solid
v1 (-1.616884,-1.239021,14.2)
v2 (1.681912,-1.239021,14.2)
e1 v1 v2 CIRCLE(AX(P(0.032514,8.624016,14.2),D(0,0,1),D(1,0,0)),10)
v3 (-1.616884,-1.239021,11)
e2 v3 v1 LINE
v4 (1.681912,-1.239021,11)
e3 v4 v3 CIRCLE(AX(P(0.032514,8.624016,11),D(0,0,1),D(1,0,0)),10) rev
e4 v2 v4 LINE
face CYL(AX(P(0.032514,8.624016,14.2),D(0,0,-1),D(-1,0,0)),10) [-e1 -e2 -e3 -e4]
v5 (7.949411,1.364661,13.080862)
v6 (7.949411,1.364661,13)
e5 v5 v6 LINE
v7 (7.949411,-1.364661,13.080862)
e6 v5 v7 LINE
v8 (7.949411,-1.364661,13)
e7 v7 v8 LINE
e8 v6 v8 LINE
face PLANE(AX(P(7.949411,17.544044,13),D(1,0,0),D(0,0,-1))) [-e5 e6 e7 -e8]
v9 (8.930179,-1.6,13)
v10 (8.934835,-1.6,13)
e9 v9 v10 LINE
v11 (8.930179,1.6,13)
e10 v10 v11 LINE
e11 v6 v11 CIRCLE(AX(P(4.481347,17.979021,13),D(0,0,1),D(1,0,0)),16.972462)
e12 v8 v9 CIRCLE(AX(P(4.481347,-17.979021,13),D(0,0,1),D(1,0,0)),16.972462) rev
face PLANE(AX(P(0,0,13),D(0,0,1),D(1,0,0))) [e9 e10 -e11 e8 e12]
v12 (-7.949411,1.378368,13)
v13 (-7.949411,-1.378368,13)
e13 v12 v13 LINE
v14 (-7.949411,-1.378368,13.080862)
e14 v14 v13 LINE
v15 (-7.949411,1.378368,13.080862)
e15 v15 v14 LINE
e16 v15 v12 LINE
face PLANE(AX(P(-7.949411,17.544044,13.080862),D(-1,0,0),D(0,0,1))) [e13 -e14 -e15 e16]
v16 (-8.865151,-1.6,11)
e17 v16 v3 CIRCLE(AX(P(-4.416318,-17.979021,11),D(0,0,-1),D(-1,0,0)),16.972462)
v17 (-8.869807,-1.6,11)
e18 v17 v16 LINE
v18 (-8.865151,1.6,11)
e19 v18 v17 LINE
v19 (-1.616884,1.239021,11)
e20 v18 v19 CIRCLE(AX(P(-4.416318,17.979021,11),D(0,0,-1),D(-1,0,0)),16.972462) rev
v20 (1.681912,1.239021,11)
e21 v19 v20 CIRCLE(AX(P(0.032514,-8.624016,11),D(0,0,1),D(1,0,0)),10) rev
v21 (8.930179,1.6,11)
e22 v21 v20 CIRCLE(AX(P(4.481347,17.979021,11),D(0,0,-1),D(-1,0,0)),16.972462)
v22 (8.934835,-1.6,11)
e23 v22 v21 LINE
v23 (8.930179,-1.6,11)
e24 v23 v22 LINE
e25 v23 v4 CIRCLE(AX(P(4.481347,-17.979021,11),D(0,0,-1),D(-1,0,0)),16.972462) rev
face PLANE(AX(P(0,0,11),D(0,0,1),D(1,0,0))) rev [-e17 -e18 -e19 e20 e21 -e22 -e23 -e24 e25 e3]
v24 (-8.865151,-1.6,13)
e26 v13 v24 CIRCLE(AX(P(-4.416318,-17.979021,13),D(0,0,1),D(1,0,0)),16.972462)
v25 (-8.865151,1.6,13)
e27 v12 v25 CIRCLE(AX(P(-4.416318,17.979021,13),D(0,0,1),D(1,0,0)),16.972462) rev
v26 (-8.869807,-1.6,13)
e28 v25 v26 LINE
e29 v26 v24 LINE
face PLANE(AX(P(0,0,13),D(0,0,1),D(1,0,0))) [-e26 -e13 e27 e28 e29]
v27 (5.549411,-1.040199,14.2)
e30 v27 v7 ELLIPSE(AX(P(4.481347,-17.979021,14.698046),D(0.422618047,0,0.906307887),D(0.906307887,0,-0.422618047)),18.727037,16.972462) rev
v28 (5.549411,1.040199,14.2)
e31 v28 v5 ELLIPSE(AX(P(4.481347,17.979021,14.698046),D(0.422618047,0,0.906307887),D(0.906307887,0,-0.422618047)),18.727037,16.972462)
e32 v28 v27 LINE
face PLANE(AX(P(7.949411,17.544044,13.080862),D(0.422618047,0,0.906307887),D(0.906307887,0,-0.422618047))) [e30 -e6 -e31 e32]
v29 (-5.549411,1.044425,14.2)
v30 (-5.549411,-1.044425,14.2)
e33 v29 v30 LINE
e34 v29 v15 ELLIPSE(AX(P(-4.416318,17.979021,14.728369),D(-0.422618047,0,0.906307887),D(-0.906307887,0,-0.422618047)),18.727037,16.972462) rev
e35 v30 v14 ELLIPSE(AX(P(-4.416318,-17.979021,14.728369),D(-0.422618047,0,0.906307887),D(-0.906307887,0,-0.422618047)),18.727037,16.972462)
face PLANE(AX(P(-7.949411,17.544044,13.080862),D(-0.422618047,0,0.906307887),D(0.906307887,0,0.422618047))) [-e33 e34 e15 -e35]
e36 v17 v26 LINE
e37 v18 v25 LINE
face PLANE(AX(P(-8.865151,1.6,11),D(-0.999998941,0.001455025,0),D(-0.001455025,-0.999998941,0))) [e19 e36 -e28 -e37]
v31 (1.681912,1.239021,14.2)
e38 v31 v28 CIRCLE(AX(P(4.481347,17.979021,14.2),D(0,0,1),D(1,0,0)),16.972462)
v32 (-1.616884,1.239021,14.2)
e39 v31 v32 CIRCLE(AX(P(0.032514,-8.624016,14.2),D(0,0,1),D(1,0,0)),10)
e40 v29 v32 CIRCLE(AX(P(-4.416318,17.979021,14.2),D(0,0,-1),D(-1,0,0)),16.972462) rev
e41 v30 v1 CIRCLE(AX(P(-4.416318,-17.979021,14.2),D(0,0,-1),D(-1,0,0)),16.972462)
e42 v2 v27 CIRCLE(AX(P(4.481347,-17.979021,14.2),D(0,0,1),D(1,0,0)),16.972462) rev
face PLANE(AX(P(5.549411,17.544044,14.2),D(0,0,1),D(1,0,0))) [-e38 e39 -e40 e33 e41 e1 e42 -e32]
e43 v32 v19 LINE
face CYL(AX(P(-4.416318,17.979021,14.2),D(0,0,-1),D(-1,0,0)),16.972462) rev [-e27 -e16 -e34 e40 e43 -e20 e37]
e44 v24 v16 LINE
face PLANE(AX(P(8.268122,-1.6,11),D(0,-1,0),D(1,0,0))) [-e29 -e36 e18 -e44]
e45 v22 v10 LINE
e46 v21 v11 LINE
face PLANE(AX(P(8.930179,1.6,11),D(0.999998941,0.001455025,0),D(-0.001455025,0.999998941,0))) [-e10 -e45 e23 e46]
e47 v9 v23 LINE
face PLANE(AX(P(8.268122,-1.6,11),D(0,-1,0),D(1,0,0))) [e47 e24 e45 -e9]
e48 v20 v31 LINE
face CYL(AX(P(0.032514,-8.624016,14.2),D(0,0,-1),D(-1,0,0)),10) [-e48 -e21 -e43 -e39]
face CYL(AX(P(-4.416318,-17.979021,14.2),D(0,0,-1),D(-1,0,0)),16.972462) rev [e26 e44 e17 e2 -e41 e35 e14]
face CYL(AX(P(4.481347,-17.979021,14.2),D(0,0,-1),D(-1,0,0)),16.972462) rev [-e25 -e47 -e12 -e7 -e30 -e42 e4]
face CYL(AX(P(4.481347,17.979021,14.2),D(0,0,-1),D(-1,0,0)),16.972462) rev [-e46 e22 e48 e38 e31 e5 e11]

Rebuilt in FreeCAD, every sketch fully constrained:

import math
import FreeCAD as App
import Part
import Sketcher
Q = App.Units.Quantity


def edges_at(feature, points):
    """Names of the edges that pass closest to the given points."""
    edges = feature.Shape.Edges
    near = lambda p: min(range(len(edges)), key=lambda i: edges[i].distToShape(Part.Vertex(*p))[0])
    return sorted({f"Edge{near(p) + 1}" for p in points})


def add_polygon(sketch, points):
    """Adds a closed chain of lines whose ends are joined by coincident constraints."""
    first, n = sketch.GeometryCount, len(points)
    for a, b in zip(points, points[1:] + points[:1]):
        sketch.addGeometry(Part.LineSegment(App.Vector(*a, 0), App.Vector(*b, 0)), False)
    for i in range(n):
        sketch.addConstraint(Sketcher.Constraint("Coincident", first + i, 2, first + (i + 1) % n, 1))

doc = App.newDocument("Part")
params = doc.addObject("Spreadsheet::Sheet", "Params")
for row, (alias, value) in enumerate([
    ("pad1_length", "2 mm"),
    ("pad2_length", "3.2 mm"),
    ("fillet_radius", "10 mm"),
], start=1):
    params.set(f"A{row}", alias)
    params.set(f"B{row}", "=" + value)
    params.setAlias(f"B{row}", alias)

body = doc.addObject("PartDesign::Body", "Body")

# Sketch on XY plane
sketch1 = body.newObject("Sketcher::SketchObject", "Sketch")
sketch1.AttachmentSupport = (doc.getObject("XY_Plane"), [""])
sketch1.MapMode = "FlatFace"
sketch1.AttachmentOffset = App.Placement(App.Vector(0, 0, 13), App.Rotation())
add_polygon(sketch1, [(8.9, 1.6), (-8.9, 1.6), (-8.9, -1.6), (8.9, -1.6)])  # lines 0-3
sketch1.addConstraint(Sketcher.Constraint("Horizontal", 0))
sketch1.addConstraint(Sketcher.Constraint("Horizontal", 2))
sketch1.addConstraint(Sketcher.Constraint("DistanceY", -1, 1, 0, 2, 1.6))
sketch1.addConstraint(Sketcher.Constraint("DistanceY", 1, 2, -1, 1, 1.6))
sketch1.addConstraint(Sketcher.Constraint("DistanceX", 0, 2, 0, 1, 17.79533))
sketch1.addConstraint(Sketcher.Constraint("DistanceX", 2, 1, 2, 2, 17.804642))
sketch1.addConstraint(Sketcher.Constraint("DistanceX", 0, 2, -1, 1, 8.865151))
sketch1.addConstraint(Sketcher.Constraint("DistanceX", 1, 2, -1, 1, 8.869807))
pad1 = body.newObject("PartDesign::Pad", "Pad")
pad1.Profile = sketch1
pad1.setExpression("Length", "Params.pad1_length")
pad1.Reversed = True

# Sketch on XZ plane
sketch2 = body.newObject("Sketcher::SketchObject", "Sketch001")
sketch2.AttachmentSupport = (doc.getObject("XZ_Plane"), [""])
sketch2.MapMode = "FlatFace"
sketch2.AttachmentOffset = App.Placement(App.Vector(0, 0, 1.6), App.Rotation())
add_polygon(sketch2, [(-7.95, 13), (7.95, 13), (7.95, 13.08), (5.55, 14.2), (-5.55, 14.2), (-7.95, 13.08)])  # lines 0-5
sketch2.addConstraint(Sketcher.Constraint("Horizontal", 0))
sketch2.addConstraint(Sketcher.Constraint("Vertical", 1))
sketch2.addConstraint(Sketcher.Constraint("Horizontal", 3))
sketch2.addConstraint(Sketcher.Constraint("Vertical", 5))
sketch2.addConstraint(Sketcher.Constraint("Symmetric", 1, 2, 4, 2, -2))
sketch2.addConstraint(Sketcher.Constraint("Equal", 2, 4))
sketch2.addConstraint(Sketcher.Constraint("Angle", 2, Q("155.000014 deg")))
sketch2.addConstraint(Sketcher.Constraint("DistanceY", -1, 1, 0, 2, 13.0))
sketch2.addConstraint(Sketcher.Constraint("DistanceY", -1, 1, 2, 2, 14.2))
sketch2.addConstraint(Sketcher.Constraint("DistanceX", 2, 2, 1, 2, 2.4))
sketch2.addConstraint(Sketcher.Constraint("DistanceX", 0, 1, 0, 2, 15.898822))
pad2 = body.newObject("PartDesign::Pad", "Pad001")
pad2.Profile = sketch2
pad2.setExpression("Length", "Params.pad2_length")
pad2.Reversed = True

# Sketch on XY plane
sketch3 = body.newObject("Sketcher::SketchObject", "Sketch002")
sketch3.AttachmentSupport = (doc.getObject("XY_Plane"), [""])
sketch3.MapMode = "FlatFace"
sketch3.AttachmentOffset = App.Placement(App.Vector(0, 0, 11), App.Rotation())
sketch3.addGeometry(Part.ArcOfCircle(Part.Circle(App.Vector(4, -18, 0), App.Vector(0, 0, 1), 17), math.radians(75), math.radians(105)), False)
sketch3.addGeometry(Part.LineSegment(App.Vector(9, -2, 0), App.Vector(0, -2, 0)), False)
sketch3.addGeometry(Part.ArcOfCircle(Part.Circle(App.Vector(-4, -18, 0), App.Vector(0, 0, 1), 17), math.radians(75), math.radians(105)), False)
sketch3.addGeometry(Part.LineSegment(App.Vector(0, -2, 0), App.Vector(-9, -2, 0)), False)
sketch3.addGeometry(Part.LineSegment(App.Vector(-9, 2, 0), App.Vector(0, 2, 0)), False)
sketch3.addGeometry(Part.ArcOfCircle(Part.Circle(App.Vector(-4, 18, 0), App.Vector(0, 0, 1), 17), math.radians(-105), math.radians(-75)), False)
sketch3.addGeometry(Part.LineSegment(App.Vector(0, 2, 0), App.Vector(9, 2, 0)), False)
sketch3.addGeometry(Part.ArcOfCircle(Part.Circle(App.Vector(4, 18, 0), App.Vector(0, 0, 1), 17), math.radians(-105), math.radians(-75)), False)
sketch3.addConstraint(Sketcher.Constraint("Coincident", 0, 1, 1, 1))
sketch3.addConstraint(Sketcher.Constraint("Coincident", 1, 2, 0, 2))
sketch3.addConstraint(Sketcher.Constraint("Coincident", 2, 1, 3, 1))
sketch3.addConstraint(Sketcher.Constraint("Coincident", 3, 2, 2, 2))
sketch3.addConstraint(Sketcher.Constraint("Coincident", 4, 1, 5, 1))
sketch3.addConstraint(Sketcher.Constraint("Coincident", 5, 2, 4, 2))
sketch3.addConstraint(Sketcher.Constraint("Coincident", 6, 1, 7, 1))
sketch3.addConstraint(Sketcher.Constraint("Coincident", 7, 2, 6, 2))
sketch3.addConstraint(Sketcher.Constraint("Horizontal", 1))
sketch3.addConstraint(Sketcher.Constraint("Horizontal", 3))
sketch3.addConstraint(Sketcher.Constraint("Horizontal", 4))
sketch3.addConstraint(Sketcher.Constraint("Horizontal", 6))
sketch3.addConstraint(Sketcher.Constraint("Coincident", 2, 1, 1, 2))
sketch3.addConstraint(Sketcher.Constraint("Coincident", 6, 1, 5, 2))
sketch3.addConstraint(Sketcher.Constraint("Equal", 0, 2))
sketch3.addConstraint(Sketcher.Constraint("Equal", 2, 5))
sketch3.addConstraint(Sketcher.Constraint("Equal", 5, 7))
sketch3.addConstraint(Sketcher.Constraint("Symmetric", 2, 3, 5, 3, -1))
sketch3.addConstraint(Sketcher.Constraint("Symmetric", 0, 3, 7, 3, -1))
sketch3.addConstraint(Sketcher.Constraint("Horizontal", 0, 3, 2, 3))
sketch3.addConstraint(Sketcher.Constraint("DistanceY", 0, 1, -1, 1, 1.6))
sketch3.addConstraint(Sketcher.Constraint("Radius", 0, 16.972462))
sketch3.addConstraint(Sketcher.Constraint("DistanceX", 1, 2, 1, 1, 8.897665))
sketch3.addConstraint(Sketcher.Constraint("DistanceX", 2, 3, -1, 1, 4.416318))
pocket1 = body.newObject("PartDesign::Pocket", "Pocket")
pocket1.Profile = sketch3
pocket1.Type = "ThroughAll"
pocket1.Reversed = True
doc.recompute()

fillet = body.newObject("PartDesign::Fillet", "Fillet")
fillet.Base = (pocket1, edges_at(pocket1, [(0.033, -1.6, 12.6), (0.033, 1.6, 12.6)]))
fillet.setExpression("Radius", "Params.fillet_radius")

doc.recompute()
